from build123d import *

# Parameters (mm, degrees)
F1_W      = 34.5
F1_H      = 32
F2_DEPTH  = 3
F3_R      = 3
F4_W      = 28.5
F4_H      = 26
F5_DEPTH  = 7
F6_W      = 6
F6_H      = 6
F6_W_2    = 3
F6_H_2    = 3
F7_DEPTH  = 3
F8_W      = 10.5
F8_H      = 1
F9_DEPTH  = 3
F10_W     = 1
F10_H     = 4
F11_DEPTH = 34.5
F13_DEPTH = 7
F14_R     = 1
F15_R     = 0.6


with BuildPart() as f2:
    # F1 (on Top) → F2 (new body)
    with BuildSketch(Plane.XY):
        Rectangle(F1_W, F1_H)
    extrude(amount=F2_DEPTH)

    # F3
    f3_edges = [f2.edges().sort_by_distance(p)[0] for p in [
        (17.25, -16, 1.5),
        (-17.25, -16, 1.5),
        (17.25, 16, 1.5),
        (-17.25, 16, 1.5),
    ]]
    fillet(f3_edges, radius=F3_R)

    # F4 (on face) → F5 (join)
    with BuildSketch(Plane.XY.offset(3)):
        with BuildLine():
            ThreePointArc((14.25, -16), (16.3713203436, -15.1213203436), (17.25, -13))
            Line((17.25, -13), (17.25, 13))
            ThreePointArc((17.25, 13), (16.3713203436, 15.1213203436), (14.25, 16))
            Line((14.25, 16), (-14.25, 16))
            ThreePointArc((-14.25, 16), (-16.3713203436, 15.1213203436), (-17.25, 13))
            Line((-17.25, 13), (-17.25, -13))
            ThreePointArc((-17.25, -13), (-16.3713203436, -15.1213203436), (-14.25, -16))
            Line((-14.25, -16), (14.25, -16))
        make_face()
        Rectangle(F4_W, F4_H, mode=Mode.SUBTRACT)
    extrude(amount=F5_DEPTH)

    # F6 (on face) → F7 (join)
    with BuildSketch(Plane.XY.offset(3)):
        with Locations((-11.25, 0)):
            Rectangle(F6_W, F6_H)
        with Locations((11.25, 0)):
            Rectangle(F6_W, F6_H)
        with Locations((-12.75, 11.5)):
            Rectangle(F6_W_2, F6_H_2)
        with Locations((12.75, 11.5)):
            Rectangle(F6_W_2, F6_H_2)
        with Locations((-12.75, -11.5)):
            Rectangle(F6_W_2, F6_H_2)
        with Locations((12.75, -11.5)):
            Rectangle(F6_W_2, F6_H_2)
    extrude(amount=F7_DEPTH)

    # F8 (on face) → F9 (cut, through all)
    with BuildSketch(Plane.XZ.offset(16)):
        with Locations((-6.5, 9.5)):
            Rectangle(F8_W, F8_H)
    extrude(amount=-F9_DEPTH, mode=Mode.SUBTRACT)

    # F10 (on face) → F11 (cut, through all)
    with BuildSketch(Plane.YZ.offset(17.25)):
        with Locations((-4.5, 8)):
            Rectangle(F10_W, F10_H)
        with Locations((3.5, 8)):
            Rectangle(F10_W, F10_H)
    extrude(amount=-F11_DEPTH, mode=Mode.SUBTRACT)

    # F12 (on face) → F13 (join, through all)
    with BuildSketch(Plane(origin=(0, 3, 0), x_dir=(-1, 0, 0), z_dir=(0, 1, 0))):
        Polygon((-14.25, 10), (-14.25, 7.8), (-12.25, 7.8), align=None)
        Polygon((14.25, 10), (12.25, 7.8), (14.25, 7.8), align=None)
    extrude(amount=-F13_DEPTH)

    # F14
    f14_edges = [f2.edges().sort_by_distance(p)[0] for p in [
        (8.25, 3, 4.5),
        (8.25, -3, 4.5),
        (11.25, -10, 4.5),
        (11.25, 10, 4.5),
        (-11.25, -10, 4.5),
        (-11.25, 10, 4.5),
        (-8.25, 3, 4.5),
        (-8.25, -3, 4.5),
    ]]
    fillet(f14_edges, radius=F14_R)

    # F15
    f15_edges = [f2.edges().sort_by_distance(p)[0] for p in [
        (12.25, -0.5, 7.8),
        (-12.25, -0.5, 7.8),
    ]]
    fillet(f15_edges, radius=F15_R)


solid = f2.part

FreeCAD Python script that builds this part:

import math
import FreeCAD as App
import Part
import Sketcher

V = App.Vector


def edges_at(feature, points):
    """Names of the edges that pass closest to the given points."""
    edges = feature.Shape.Edges
    near = lambda p: min(range(len(edges)), key=lambda i: edges[i].distToShape(Part.Vertex(*p))[0])
    return sorted({f"Edge{near(p) + 1}" for p in points})


def add_polygon(sketch, points):
    """Adds a closed chain of lines whose ends are joined by coincident constraints."""
    first, n = sketch.GeometryCount, len(points)
    for a, b in zip(points, points[1:] + points[:1]):
        sketch.addGeometry(Part.LineSegment(App.Vector(*a, 0), App.Vector(*b, 0)), False)
    for i in range(n):
        sketch.addConstraint(Sketcher.Constraint("Coincident", first + i, 2, first + (i + 1) % n, 1))

doc = App.newDocument("Part")
params = doc.addObject("Spreadsheet::Sheet", "Params")
for row, (alias, value) in enumerate([
    ("sketch1_height", "32 mm"),
    ("sketch1_width", "34.5 mm"),
    ("pad1_length", "3 mm"),
    ("fillet_radius", "3 mm"),
    ("sketch2_radius", "3 mm"),
    ("sketch2_height", "26 mm"),
    ("sketch2_width", "28.5 mm"),
    ("pad2_length", "7 mm"),
    ("sketch3_width", "6 mm"),
    ("sketch3_width2", "3 mm"),
    ("pad3_length", "3 mm"),
    ("sketch4_height", "1 mm"),
    ("sketch4_width", "10.5 mm"),
    ("pocket1_length", "3 mm"),
    ("sketch5_width", "1 mm"),
    ("sketch5_height", "4 mm"),
    ("sketch6_width", "2 mm"),
    ("sketch6_height", "2.2 mm"),
    ("pad4_length", "7 mm"),
    ("fillet2_radius", "1 mm"),
    ("fillet3_radius", "0.6 mm"),
], start=1):
    params.set(f"A{row}", alias)
    params.set(f"B{row}", "=" + value)
    params.setAlias(f"B{row}", alias)

body = doc.addObject("PartDesign::Body", "Body")

sketch1 = body.newObject("Sketcher::SketchObject", "Sketch")
sketch1.AttachmentSupport = (doc.getObject("XY_Plane"), [""])
sketch1.MapMode = "FlatFace"
add_polygon(sketch1, [(-17, 16), (-17, -16), (17, -16), (17, 16)])
sketch1.addConstraint(Sketcher.Constraint("Vertical", 0))
sketch1.addConstraint(Sketcher.Constraint("Horizontal", 1))
sketch1.addConstraint(Sketcher.Constraint("Vertical", 2))
sketch1.addConstraint(Sketcher.Constraint("Horizontal", 3))
sketch1.addConstraint(Sketcher.Constraint("Symmetric", 0, 2, 2, 2, -1, 1))
sketch1.addConstraint(Sketcher.Constraint("DistanceY", 0, 2, 0, 1, 32.0))
sketch1.addConstraint(Sketcher.Constraint("DistanceX", 1, 1, 1, 2, 34.5))
sketch1.setExpression("Constraints[9]", "Params.sketch1_height")
sketch1.setExpression("Constraints[10]", "Params.sketch1_width")
pad1 = body.newObject("PartDesign::Pad", "Pad")
pad1.Profile = sketch1
pad1.setExpression("Length", "Params.pad1_length")
doc.recompute()

fillet = body.newObject("PartDesign::Fillet", "Fillet")
fillet.Base = (pad1, edges_at(pad1, [
    (17.25, -16, 1.5),
    (-17.25, -16, 1.5),
    (17.25, 16, 1.5),
    (-17.25, 16, 1.5),
]))
fillet.setExpression("Radius", "Params.fillet_radius")

sketch2 = body.newObject("Sketcher::SketchObject", "Sketch001")
sketch2.AttachmentSupport = (doc.getObject("XY_Plane"), [""])
sketch2.MapMode = "FlatFace"
sketch2.AttachmentOffset = App.Placement(V(0, 0, 3), App.Rotation())
sketch2.addGeometry(Part.ArcOfCircle(Part.Circle(V(14.2, -13, 0), V(0, 0, 1), 3), math.radians(-90), math.radians(0)), False)
sketch2.addGeometry(Part.LineSegment(V(17.2, -13, 0), V(17.2, 13, 0)), False)
sketch2.addGeometry(Part.ArcOfCircle(Part.Circle(V(14.2, 13, 0), V(0, 0, 1), 3), math.radians(0), math.radians(90)), False)
sketch2.addGeometry(Part.LineSegment(V(14.2, 16, 0), V(-14.2, 16, 0)), False)
sketch2.addGeometry(Part.ArcOfCircle(Part.Circle(V(-14.2, 13, 0), V(0, 0, 1), 3), math.radians(90), math.radians(180)), False)
sketch2.addGeometry(Part.LineSegment(V(-17.2, 13, 0), V(-17.2, -13, 0)), False)
sketch2.addGeometry(Part.ArcOfCircle(Part.Circle(V(-14.2, -13, 0), V(0, 0, 1), 3), math.radians(180), math.radians(270)), False)
sketch2.addGeometry(Part.LineSegment(V(-14.2, -16, 0), V(14.2, -16, 0)), False)
add_polygon(sketch2, [(14.2, -13), (-14.2, -13), (-14.2, 13), (14.2, 13)])
sketch2.addConstraint(Sketcher.Constraint("Tangent", 0, 2, 1, 1))
sketch2.addConstraint(Sketcher.Constraint("Tangent", 1, 2, 2, 1))
sketch2.addConstraint(Sketcher.Constraint("Tangent", 2, 2, 3, 1))
sketch2.addConstraint(Sketcher.Constraint("Tangent", 3, 2, 4, 1))
sketch2.addConstraint(Sketcher.Constraint("Tangent", 4, 2, 5, 1))
sketch2.addConstraint(Sketcher.Constraint("Tangent", 5, 2, 6, 1))
sketch2.addConstraint(Sketcher.Constraint("Tangent", 6, 2, 7, 1))
sketch2.addConstraint(Sketcher.Constraint("Tangent", 7, 2, 0, 1))
sketch2.addConstraint(Sketcher.Constraint("Vertical", 1))
sketch2.addConstraint(Sketcher.Constraint("Horizontal", 3))
sketch2.addConstraint(Sketcher.Constraint("Vertical", 5))
sketch2.addConstraint(Sketcher.Constraint("Horizontal", 7))
sketch2.addConstraint(Sketcher.Constraint("Horizontal", 8))
sketch2.addConstraint(Sketcher.Constraint("Vertical", 9))
sketch2.addConstraint(Sketcher.Constraint("Horizontal", 10))
sketch2.addConstraint(Sketcher.Constraint("Vertical", 11))
sketch2.addConstraint(Sketcher.Constraint("Coincident", 8, 2, 6, 3))
sketch2.addConstraint(Sketcher.Constraint("Coincident", 9, 2, 4, 3))
sketch2.addConstraint(Sketcher.Constraint("Coincident", 10, 2, 2, 3))
sketch2.addConstraint(Sketcher.Constraint("Equal", 0, 2))
sketch2.addConstraint(Sketcher.Constraint("Symmetric", 0, 3, 4, 3, -1, 1))
sketch2.addConstraint(Sketcher.Constraint("Radius", 0, 3.0))
sketch2.addConstraint(Sketcher.Constraint("DistanceY", 1, 1, 1, 2, 26.0))
sketch2.addConstraint(Sketcher.Constraint("DistanceX", 3, 2, 3, 1, 28.5))
sketch2.setExpression("Constraints[25]", "Params.sketch2_radius")
sketch2.setExpression("Constraints[26]", "Params.sketch2_height")
sketch2.setExpression("Constraints[27]", "Params.sketch2_width")
pad2 = body.newObject("PartDesign::Pad", "Pad001")
pad2.Profile = sketch2
pad2.setExpression("Length", "Params.pad2_length")

sketch3 = body.newObject("Sketcher::SketchObject", "Sketch002")
sketch3.AttachmentSupport = (doc.getObject("XY_Plane"), [""])
sketch3.MapMode = "FlatFace"
sketch3.AttachmentOffset = App.Placement(V(0, 0, 3), App.Rotation())
add_polygon(sketch3, [(-14.2, 3), (-14.2, -3), (-8.2, -3), (-8.2, 3)])
add_polygon(sketch3, [(8.2, 3), (8.2, -3), (14.2, -3), (14.2, 3)])
add_polygon(sketch3, [(-14.2, 13), (-14.2, 10), (-11.2, 10), (-11.2, 13)])
add_polygon(sketch3, [(11.2, 13), (11.2, 10), (14.2, 10), (14.2, 13)])
add_polygon(sketch3, [(-14.2, -10), (-14.2, -13), (-11.2, -13), (-11.2, -10)])
add_polygon(sketch3, [(11.2, -10), (11.2, -13), (14.2, -13), (14.2, -10)])
sketch3.addConstraint(Sketcher.Constraint("Vertical", 0))
sketch3.addConstraint(Sketcher.Constraint("Horizontal", 1))
sketch3.addConstraint(Sketcher.Constraint("Vertical", 2))
sketch3.addConstraint(Sketcher.Constraint("Horizontal", 3))
sketch3.addConstraint(Sketcher.Constraint("Vertical", 4))
sketch3.addConstraint(Sketcher.Constraint("Horizontal", 5))
sketch3.addConstraint(Sketcher.Constraint("Vertical", 6))
sketch3.addConstraint(Sketcher.Constraint("Horizontal", 7))
sketch3.addConstraint(Sketcher.Constraint("Vertical", 8))
sketch3.addConstraint(Sketcher.Constraint("Horizontal", 9))
sketch3.addConstraint(Sketcher.Constraint("Vertical", 10))
sketch3.addConstraint(Sketcher.Constraint("Horizontal", 11))
sketch3.addConstraint(Sketcher.Constraint("Vertical", 12))
sketch3.addConstraint(Sketcher.Constraint("Horizontal", 13))
sketch3.addConstraint(Sketcher.Constraint("Vertical", 14))
sketch3.addConstraint(Sketcher.Constraint("Horizontal", 15))
sketch3.addConstraint(Sketcher.Constraint("Vertical", 16))
sketch3.addConstraint(Sketcher.Constraint("Horizontal", 17))
sketch3.addConstraint(Sketcher.Constraint("Vertical", 18))
sketch3.addConstraint(Sketcher.Constraint("Horizontal", 19))
sketch3.addConstraint(Sketcher.Constraint("Vertical", 20))
sketch3.addConstraint(Sketcher.Constraint("Horizontal", 21))
sketch3.addConstraint(Sketcher.Constraint("Vertical", 22))
sketch3.addConstraint(Sketcher.Constraint("Horizontal", 23))
sketch3.addConstraint(Sketcher.Constraint("Symmetric", 2, 2, 4, 2, -1, 1))
sketch3.addConstraint(Sketcher.Constraint("Symmetric", 0, 2, 6, 2, -1, 1))
sketch3.addConstraint(Sketcher.Constraint("Symmetric", 14, 2, 16, 2, -1, 1))
sketch3.addConstraint(Sketcher.Constraint("Symmetric", 12, 2, 18, 2, -1, 1))
sketch3.addConstraint(Sketcher.Constraint("Symmetric", 10, 2, 20, 2, -1, 1))
sketch3.addConstraint(Sketcher.Constraint("Symmetric", 8, 2, 22, 2, -1, 1))
sketch3.addConstraint(Sketcher.Constraint("Symmetric", 9, 2, 12, 2, -2))
sketch3.addConstraint(Sketcher.Constraint("Symmetric", 11, 2, 14, 2, -2))
sketch3.addConstraint(Sketcher.Constraint("Horizontal", 1, 2, 4, 2))
sketch3.addConstraint(Sketcher.Constraint("Vertical", 3, 2, 8, 2))
sketch3.addConstraint(Sketcher.Constraint("Equal", 7, 0))
sketch3.addConstraint(Sketcher.Constraint("Equal", 23, 8))
sketch3.addConstraint(Sketcher.Constraint("DistanceX", 1, 1, 1, 2, 6.0))
sketch3.addConstraint(Sketcher.Constraint("DistanceX", 9, 1, 9, 2, 3.0))
sketch3.addConstraint(Sketcher.Constraint("DistanceY", -1, 1, 8, 2, 10.0))
sketch3.addConstraint(Sketcher.Constraint("DistanceX", 1, 2, 4, 2, 16.5))
sketch3.setExpression("Constraints[60]", "Params.sketch3_width")
sketch3.setExpression("Constraints[61]", "Params.sketch3_width2")
pad3 = body.newObject("PartDesign::Pad", "Pad002")
pad3.Profile = sketch3
pad3.setExpression("Length", "Params.pad3_length")

sketch4 = body.newObject("Sketcher::SketchObject", "Sketch003")
sketch4.AttachmentSupport = (doc.getObject("XZ_Plane"), [""])
sketch4.MapMode = "FlatFace"
sketch4.AttachmentOffset = App.Placement(V(0, 0, 16), App.Rotation())
add_polygon(sketch4, [(-11.8, 10), (-11.8, 9), (-1.2, 9), (-1.2, 10)])
sketch4.addConstraint(Sketcher.Constraint("Vertical", 0))
sketch4.addConstraint(Sketcher.Constraint("Horizontal", 1))
sketch4.addConstraint(Sketcher.Constraint("Vertical", 2))
sketch4.addConstraint(Sketcher.Constraint("Horizontal", 3))
sketch4.addConstraint(Sketcher.Constraint("DistanceY", 0, 2, 0, 1, 1.0))
sketch4.addConstraint(Sketcher.Constraint("DistanceX", 1, 1, 1, 2, 10.5))
sketch4.addConstraint(Sketcher.Constraint("DistanceY", -1, 1, 0, 2, 9.0))
sketch4.addConstraint(Sketcher.Constraint("DistanceX", 0, 2, -1, 1, 11.75))
sketch4.setExpression("Constraints[8]", "Params.sketch4_height")
sketch4.setExpression("Constraints[9]", "Params.sketch4_width")
pocket1 = body.newObject("PartDesign::Pocket", "Pocket")
pocket1.Profile = sketch4
pocket1.setExpression("Length", "Params.pocket1_length")

sketch5 = body.newObject("Sketcher::SketchObject", "Sketch004")
sketch5.AttachmentSupport = (doc.getObject("YZ_Plane"), [""])
sketch5.MapMode = "FlatFace"
sketch5.AttachmentOffset = App.Placement(V(0, 0, 17.25), App.Rotation())
add_polygon(sketch5, [(-5, 10), (-5, 6), (-4, 6), (-4, 10)])
add_polygon(sketch5, [(3, 10), (3, 6), (4, 6), (4, 10)])
sketch5.addConstraint(Sketcher.Constraint("Vertical", 0))
sketch5.addConstraint(Sketcher.Constraint("Horizontal", 1))
sketch5.addConstraint(Sketcher.Constraint("Vertical", 2))
sketch5.addConstraint(Sketcher.Constraint("Horizontal", 3))
sketch5.addConstraint(Sketcher.Constraint("Vertical", 4))
sketch5.addConstraint(Sketcher.Constraint("Horizontal", 5))
sketch5.addConstraint(Sketcher.Constraint("Vertical", 6))
sketch5.addConstraint(Sketcher.Constraint("Horizontal", 7))
sketch5.addConstraint(Sketcher.Constraint("Symmetric", 1, 2, 5, 2, -2))
sketch5.addConstraint(Sketcher.Constraint("Horizontal", 3, 2, 6, 2))
sketch5.addConstraint(Sketcher.Constraint("Equal", 3, 5))
sketch5.addConstraint(Sketcher.Constraint("DistanceX", 1, 1, 1, 2, 1.0))
sketch5.addConstraint(Sketcher.Constraint("DistanceY", 0, 2, 0, 1, 4.0))
sketch5.addConstraint(Sketcher.Constraint("DistanceX", 0, 2, -1, 1, 5.0))
sketch5.addConstraint(Sketcher.Constraint("DistanceY", -1, 1, 0, 2, 6.0))
sketch5.setExpression("Constraints[19]", "Params.sketch5_width")
sketch5.setExpression("Constraints[20]", "Params.sketch5_height")
pocket2 = body.newObject("PartDesign::Pocket", "Pocket001")
pocket2.Profile = sketch5
pocket2.Type = "ThroughAll"

sketch6 = body.newObject("Sketcher::SketchObject", "Sketch005")
sketch6.AttachmentSupport = (doc.getObject("XZ_Plane"), [""])
sketch6.MapMode = "FlatFace"
sketch6.AttachmentOffset = App.Placement(V(0, 0, -3), App.Rotation())
add_polygon(sketch6, [(14.2, 10), (14.2, 7.8), (12.2, 7.8)])
add_polygon(sketch6, [(-14.2, 10), (-12.2, 7.8), (-14.2, 7.8)])
sketch6.addConstraint(Sketcher.Constraint("Vertical", 0))
sketch6.addConstraint(Sketcher.Constraint("Horizontal", 1))
sketch6.addConstraint(Sketcher.Constraint("Horizontal", 4))
sketch6.addConstraint(Sketcher.Constraint("Vertical", 5))
sketch6.addConstraint(Sketcher.Constraint("Symmetric", 1, 2, 3, 2, -2))
sketch6.addConstraint(Sketcher.Constraint("Symmetric", 2, 2, 5, 2, -2))
sketch6.addConstraint(Sketcher.Constraint("DistanceX", 1, 2, 1, 1, 2.0))
sketch6.addConstraint(Sketcher.Constraint("DistanceY", 0, 2, 0, 1, 2.2))
sketch6.addConstraint(Sketcher.Constraint("DistanceY", -1, 1, 2, 2, 10.0))
sketch6.addConstraint(Sketcher.Constraint("DistanceX", 3, 2, 1, 2, 24.5))
sketch6.setExpression("Constraints[12]", "Params.sketch6_width")
sketch6.setExpression("Constraints[13]", "Params.sketch6_height")
pad4 = body.newObject("PartDesign::Pad", "Pad003")
pad4.Profile = sketch6
pad4.setExpression("Length", "Params.pad4_length")
doc.recompute()

fillet2 = body.newObject("PartDesign::Fillet", "Fillet001")
fillet2.Base = (pad4, edges_at(pad4, [
    (8.25, 3, 4.5),
    (8.25, -3, 4.5),
    (11.25, -10, 4.5),
    (11.25, 10, 4.5),
    (-11.25, -10, 4.5),
    (-11.25, 10, 4.5),
    (-8.25, 3, 4.5),
    (-8.25, -3, 4.5),
]))
fillet2.setExpression("Radius", "Params.fillet2_radius")
doc.recompute()

fillet3 = body.newObject("PartDesign::Fillet", "Fillet002")
fillet3.Base = (fillet2, edges_at(fillet2, [(12.25, -0.5, 7.8), (-12.25, -0.5, 7.8)]))
fillet3.setExpression("Radius", "Params.fillet3_radius")

doc.recompute()
